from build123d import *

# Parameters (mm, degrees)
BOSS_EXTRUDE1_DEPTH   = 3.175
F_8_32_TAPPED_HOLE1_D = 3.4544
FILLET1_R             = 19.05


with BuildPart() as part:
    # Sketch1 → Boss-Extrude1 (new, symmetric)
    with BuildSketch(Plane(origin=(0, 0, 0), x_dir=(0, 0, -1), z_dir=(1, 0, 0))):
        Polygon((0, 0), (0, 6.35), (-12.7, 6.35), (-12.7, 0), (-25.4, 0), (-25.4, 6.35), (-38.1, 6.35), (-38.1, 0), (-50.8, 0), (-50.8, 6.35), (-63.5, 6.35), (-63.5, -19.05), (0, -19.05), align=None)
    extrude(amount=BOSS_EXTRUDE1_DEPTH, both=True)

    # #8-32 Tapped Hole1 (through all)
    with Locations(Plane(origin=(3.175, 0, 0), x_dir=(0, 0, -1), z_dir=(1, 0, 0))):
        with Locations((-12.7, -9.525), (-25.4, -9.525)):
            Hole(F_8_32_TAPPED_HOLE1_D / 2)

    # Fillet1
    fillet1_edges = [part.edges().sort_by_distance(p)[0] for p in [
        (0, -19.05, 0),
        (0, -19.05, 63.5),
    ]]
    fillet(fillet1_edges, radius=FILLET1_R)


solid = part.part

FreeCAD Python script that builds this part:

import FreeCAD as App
import Part
import Sketcher
Q = App.Units.Quantity


def edges_at(feature, points):
    """Names of the edges that pass closest to the given points."""
    edges = feature.Shape.Edges
    near = lambda p: min(range(len(edges)), key=lambda i: edges[i].distToShape(Part.Vertex(*p))[0])
    return sorted({f"Edge{near(p) + 1}" for p in points})

doc = App.newDocument("Part")
body = doc.addObject("PartDesign::Body", "Body")

# Sketch on YZ plane
sketch1 = body.newObject("Sketcher::SketchObject", "Sketch")
sketch1.AttachmentSupport = (doc.getObject("YZ_Plane"), [""])
sketch1.MapMode = "FlatFace"
sketch1.addGeometry(Part.LineSegment(App.Vector(6.35, 0, 0), App.Vector(6.35, 12.7, 0)), False)
sketch1.addGeometry(Part.LineSegment(App.Vector(6.35, 12.7, 0), App.Vector(0, 12.7, 0)), False)
sketch1.addGeometry(Part.LineSegment(App.Vector(0, 12.7, 0), App.Vector(0, 25.4, 0)), False)
sketch1.addGeometry(Part.LineSegment(App.Vector(0, 25.4, 0), App.Vector(6.35, 25.4, 0)), False)
sketch1.addGeometry(Part.LineSegment(App.Vector(6.35, 25.4, 0), App.Vector(6.35, 38.1, 0)), False)
sketch1.addGeometry(Part.LineSegment(App.Vector(6.35, 38.1, 0), App.Vector(0, 38.1, 0)), False)
sketch1.addGeometry(Part.LineSegment(App.Vector(0, 38.1, 0), App.Vector(0, 50.8, 0)), False)
sketch1.addGeometry(Part.LineSegment(App.Vector(0, 50.8, 0), App.Vector(6.35, 50.8, 0)), False)
sketch1.addGeometry(Part.LineSegment(App.Vector(6.35, 50.8, 0), App.Vector(6.35, 63.5, 0)), False)
sketch1.addGeometry(Part.LineSegment(App.Vector(6.35, 63.5, 0), App.Vector(-19.05, 63.5, 0)), False)
sketch1.addGeometry(Part.LineSegment(App.Vector(-19.05, 63.5, 0), App.Vector(-19.05, 0, 0)), False)
sketch1.addGeometry(Part.LineSegment(App.Vector(-19.05, 0, 0), App.Vector(6.35, 0, 0)), False)
sketch1.addConstraint(Sketcher.Constraint("Coincident", 0, 2, 1, 1))
sketch1.addConstraint(Sketcher.Constraint("Coincident", 1, 2, 2, 1))
sketch1.addConstraint(Sketcher.Constraint("Coincident", 2, 2, 3, 1))
sketch1.addConstraint(Sketcher.Constraint("Coincident", 3, 2, 4, 1))
sketch1.addConstraint(Sketcher.Constraint("Coincident", 4, 2, 5, 1))
sketch1.addConstraint(Sketcher.Constraint("Coincident", 5, 2, 6, 1))
sketch1.addConstraint(Sketcher.Constraint("Coincident", 6, 2, 7, 1))
sketch1.addConstraint(Sketcher.Constraint("Coincident", 7, 2, 8, 1))
sketch1.addConstraint(Sketcher.Constraint("Coincident", 8, 2, 9, 1))
sketch1.addConstraint(Sketcher.Constraint("Coincident", 9, 2, 10, 1))
sketch1.addConstraint(Sketcher.Constraint("Coincident", 10, 2, 11, 1))
sketch1.addConstraint(Sketcher.Constraint("Coincident", 11, 2, 0, 1))
sketch1.addConstraint(Sketcher.Constraint("Vertical", 0))
sketch1.addConstraint(Sketcher.Constraint("Horizontal", 1))
sketch1.addConstraint(Sketcher.Constraint("Vertical", 2))
sketch1.addConstraint(Sketcher.Constraint("Horizontal", 3))
sketch1.addConstraint(Sketcher.Constraint("Vertical", 4))
sketch1.addConstraint(Sketcher.Constraint("Horizontal", 5))
sketch1.addConstraint(Sketcher.Constraint("Vertical", 6))
sketch1.addConstraint(Sketcher.Constraint("Horizontal", 7))
sketch1.addConstraint(Sketcher.Constraint("Vertical", 8))
sketch1.addConstraint(Sketcher.Constraint("Horizontal", 9))
sketch1.addConstraint(Sketcher.Constraint("Vertical", 10))
sketch1.addConstraint(Sketcher.Constraint("Horizontal", 11))
sketch1.addConstraint(Sketcher.Constraint("PointOnObject", 1, 2, -2))
sketch1.addConstraint(Sketcher.Constraint("PointOnObject", 5, 2, -2))
sketch1.addConstraint(Sketcher.Constraint("PointOnObject", 10, 2, -1))
sketch1.addConstraint(Sketcher.Constraint("Vertical", 0, 2, 3, 2))
sketch1.addConstraint(Sketcher.Constraint("Vertical", 4, 2, 7, 2))
sketch1.addConstraint(Sketcher.Constraint("Equal", 0, 2))
sketch1.addConstraint(Sketcher.Constraint("Equal", 2, 4))
sketch1.addConstraint(Sketcher.Constraint("Equal", 4, 6))
sketch1.addConstraint(Sketcher.Constraint("Equal", 6, 8))
sketch1.addConstraint(Sketcher.Constraint("DistanceX", 9, 2, 9, 1, Q("1 in")))
sketch1.addConstraint(Sketcher.Constraint("DistanceY", 0, 1, 0, 2, Q("0.5 in")))
sketch1.addConstraint(Sketcher.Constraint("DistanceX", 1, 2, 1, 1, Q("0.25 in")))
pad1 = body.newObject("PartDesign::Pad", "Pad")
pad1.Profile = sketch1
pad1.Length = Q("0.25 in")
pad1.Midplane = True

# Sketch on YZ plane
sketch2 = body.newObject("Sketcher::SketchObject", "Sketch001")
sketch2.AttachmentSupport = (doc.getObject("YZ_Plane"), [""])
sketch2.MapMode = "FlatFace"
sketch2.AttachmentOffset = App.Placement(App.Vector(0, 0, 0.125 * 25.4), App.Rotation())
sketch2.addGeometry(Part.Circle(App.Vector(-9.525, 12.7, 0), App.Vector(0, 0, 1), 1.7272), False)
sketch2.addGeometry(Part.Circle(App.Vector(-9.525, 25.4, 0), App.Vector(0, 0, 1), 1.7272), False)
sketch2.addConstraint(Sketcher.Constraint("Equal", 0, 1))
sketch2.addConstraint(Sketcher.Constraint("Vertical", 0, 3, 1, 3))
sketch2.addConstraint(Sketcher.Constraint("Diameter", 0, Q("0.136 in")))
sketch2.addConstraint(Sketcher.Constraint("DistanceY", -1, 1, 1, 3, Q("1 in")))
sketch2.addConstraint(Sketcher.Constraint("DistanceY", -1, 1, 0, 3, Q("0.5 in")))
sketch2.addConstraint(Sketcher.Constraint("DistanceX", 0, 3, -1, 1, Q("0.375 in")))
doc.recompute()
hole = body.newObject("PartDesign::Hole", "Hole")
hole.Profile = sketch2
hole.ThreadType = "None"
hole.Diameter = Q("0.136 in")
hole.DepthType = "ThroughAll"
doc.recompute()

fillet = body.newObject("PartDesign::Fillet", "Fillet")
fillet.Base = (hole, edges_at(hole, [(0, -19.05, 0), (0, -19.05, 63.5)]))
fillet.Radius = Q("0.75 in")

doc.recompute()
